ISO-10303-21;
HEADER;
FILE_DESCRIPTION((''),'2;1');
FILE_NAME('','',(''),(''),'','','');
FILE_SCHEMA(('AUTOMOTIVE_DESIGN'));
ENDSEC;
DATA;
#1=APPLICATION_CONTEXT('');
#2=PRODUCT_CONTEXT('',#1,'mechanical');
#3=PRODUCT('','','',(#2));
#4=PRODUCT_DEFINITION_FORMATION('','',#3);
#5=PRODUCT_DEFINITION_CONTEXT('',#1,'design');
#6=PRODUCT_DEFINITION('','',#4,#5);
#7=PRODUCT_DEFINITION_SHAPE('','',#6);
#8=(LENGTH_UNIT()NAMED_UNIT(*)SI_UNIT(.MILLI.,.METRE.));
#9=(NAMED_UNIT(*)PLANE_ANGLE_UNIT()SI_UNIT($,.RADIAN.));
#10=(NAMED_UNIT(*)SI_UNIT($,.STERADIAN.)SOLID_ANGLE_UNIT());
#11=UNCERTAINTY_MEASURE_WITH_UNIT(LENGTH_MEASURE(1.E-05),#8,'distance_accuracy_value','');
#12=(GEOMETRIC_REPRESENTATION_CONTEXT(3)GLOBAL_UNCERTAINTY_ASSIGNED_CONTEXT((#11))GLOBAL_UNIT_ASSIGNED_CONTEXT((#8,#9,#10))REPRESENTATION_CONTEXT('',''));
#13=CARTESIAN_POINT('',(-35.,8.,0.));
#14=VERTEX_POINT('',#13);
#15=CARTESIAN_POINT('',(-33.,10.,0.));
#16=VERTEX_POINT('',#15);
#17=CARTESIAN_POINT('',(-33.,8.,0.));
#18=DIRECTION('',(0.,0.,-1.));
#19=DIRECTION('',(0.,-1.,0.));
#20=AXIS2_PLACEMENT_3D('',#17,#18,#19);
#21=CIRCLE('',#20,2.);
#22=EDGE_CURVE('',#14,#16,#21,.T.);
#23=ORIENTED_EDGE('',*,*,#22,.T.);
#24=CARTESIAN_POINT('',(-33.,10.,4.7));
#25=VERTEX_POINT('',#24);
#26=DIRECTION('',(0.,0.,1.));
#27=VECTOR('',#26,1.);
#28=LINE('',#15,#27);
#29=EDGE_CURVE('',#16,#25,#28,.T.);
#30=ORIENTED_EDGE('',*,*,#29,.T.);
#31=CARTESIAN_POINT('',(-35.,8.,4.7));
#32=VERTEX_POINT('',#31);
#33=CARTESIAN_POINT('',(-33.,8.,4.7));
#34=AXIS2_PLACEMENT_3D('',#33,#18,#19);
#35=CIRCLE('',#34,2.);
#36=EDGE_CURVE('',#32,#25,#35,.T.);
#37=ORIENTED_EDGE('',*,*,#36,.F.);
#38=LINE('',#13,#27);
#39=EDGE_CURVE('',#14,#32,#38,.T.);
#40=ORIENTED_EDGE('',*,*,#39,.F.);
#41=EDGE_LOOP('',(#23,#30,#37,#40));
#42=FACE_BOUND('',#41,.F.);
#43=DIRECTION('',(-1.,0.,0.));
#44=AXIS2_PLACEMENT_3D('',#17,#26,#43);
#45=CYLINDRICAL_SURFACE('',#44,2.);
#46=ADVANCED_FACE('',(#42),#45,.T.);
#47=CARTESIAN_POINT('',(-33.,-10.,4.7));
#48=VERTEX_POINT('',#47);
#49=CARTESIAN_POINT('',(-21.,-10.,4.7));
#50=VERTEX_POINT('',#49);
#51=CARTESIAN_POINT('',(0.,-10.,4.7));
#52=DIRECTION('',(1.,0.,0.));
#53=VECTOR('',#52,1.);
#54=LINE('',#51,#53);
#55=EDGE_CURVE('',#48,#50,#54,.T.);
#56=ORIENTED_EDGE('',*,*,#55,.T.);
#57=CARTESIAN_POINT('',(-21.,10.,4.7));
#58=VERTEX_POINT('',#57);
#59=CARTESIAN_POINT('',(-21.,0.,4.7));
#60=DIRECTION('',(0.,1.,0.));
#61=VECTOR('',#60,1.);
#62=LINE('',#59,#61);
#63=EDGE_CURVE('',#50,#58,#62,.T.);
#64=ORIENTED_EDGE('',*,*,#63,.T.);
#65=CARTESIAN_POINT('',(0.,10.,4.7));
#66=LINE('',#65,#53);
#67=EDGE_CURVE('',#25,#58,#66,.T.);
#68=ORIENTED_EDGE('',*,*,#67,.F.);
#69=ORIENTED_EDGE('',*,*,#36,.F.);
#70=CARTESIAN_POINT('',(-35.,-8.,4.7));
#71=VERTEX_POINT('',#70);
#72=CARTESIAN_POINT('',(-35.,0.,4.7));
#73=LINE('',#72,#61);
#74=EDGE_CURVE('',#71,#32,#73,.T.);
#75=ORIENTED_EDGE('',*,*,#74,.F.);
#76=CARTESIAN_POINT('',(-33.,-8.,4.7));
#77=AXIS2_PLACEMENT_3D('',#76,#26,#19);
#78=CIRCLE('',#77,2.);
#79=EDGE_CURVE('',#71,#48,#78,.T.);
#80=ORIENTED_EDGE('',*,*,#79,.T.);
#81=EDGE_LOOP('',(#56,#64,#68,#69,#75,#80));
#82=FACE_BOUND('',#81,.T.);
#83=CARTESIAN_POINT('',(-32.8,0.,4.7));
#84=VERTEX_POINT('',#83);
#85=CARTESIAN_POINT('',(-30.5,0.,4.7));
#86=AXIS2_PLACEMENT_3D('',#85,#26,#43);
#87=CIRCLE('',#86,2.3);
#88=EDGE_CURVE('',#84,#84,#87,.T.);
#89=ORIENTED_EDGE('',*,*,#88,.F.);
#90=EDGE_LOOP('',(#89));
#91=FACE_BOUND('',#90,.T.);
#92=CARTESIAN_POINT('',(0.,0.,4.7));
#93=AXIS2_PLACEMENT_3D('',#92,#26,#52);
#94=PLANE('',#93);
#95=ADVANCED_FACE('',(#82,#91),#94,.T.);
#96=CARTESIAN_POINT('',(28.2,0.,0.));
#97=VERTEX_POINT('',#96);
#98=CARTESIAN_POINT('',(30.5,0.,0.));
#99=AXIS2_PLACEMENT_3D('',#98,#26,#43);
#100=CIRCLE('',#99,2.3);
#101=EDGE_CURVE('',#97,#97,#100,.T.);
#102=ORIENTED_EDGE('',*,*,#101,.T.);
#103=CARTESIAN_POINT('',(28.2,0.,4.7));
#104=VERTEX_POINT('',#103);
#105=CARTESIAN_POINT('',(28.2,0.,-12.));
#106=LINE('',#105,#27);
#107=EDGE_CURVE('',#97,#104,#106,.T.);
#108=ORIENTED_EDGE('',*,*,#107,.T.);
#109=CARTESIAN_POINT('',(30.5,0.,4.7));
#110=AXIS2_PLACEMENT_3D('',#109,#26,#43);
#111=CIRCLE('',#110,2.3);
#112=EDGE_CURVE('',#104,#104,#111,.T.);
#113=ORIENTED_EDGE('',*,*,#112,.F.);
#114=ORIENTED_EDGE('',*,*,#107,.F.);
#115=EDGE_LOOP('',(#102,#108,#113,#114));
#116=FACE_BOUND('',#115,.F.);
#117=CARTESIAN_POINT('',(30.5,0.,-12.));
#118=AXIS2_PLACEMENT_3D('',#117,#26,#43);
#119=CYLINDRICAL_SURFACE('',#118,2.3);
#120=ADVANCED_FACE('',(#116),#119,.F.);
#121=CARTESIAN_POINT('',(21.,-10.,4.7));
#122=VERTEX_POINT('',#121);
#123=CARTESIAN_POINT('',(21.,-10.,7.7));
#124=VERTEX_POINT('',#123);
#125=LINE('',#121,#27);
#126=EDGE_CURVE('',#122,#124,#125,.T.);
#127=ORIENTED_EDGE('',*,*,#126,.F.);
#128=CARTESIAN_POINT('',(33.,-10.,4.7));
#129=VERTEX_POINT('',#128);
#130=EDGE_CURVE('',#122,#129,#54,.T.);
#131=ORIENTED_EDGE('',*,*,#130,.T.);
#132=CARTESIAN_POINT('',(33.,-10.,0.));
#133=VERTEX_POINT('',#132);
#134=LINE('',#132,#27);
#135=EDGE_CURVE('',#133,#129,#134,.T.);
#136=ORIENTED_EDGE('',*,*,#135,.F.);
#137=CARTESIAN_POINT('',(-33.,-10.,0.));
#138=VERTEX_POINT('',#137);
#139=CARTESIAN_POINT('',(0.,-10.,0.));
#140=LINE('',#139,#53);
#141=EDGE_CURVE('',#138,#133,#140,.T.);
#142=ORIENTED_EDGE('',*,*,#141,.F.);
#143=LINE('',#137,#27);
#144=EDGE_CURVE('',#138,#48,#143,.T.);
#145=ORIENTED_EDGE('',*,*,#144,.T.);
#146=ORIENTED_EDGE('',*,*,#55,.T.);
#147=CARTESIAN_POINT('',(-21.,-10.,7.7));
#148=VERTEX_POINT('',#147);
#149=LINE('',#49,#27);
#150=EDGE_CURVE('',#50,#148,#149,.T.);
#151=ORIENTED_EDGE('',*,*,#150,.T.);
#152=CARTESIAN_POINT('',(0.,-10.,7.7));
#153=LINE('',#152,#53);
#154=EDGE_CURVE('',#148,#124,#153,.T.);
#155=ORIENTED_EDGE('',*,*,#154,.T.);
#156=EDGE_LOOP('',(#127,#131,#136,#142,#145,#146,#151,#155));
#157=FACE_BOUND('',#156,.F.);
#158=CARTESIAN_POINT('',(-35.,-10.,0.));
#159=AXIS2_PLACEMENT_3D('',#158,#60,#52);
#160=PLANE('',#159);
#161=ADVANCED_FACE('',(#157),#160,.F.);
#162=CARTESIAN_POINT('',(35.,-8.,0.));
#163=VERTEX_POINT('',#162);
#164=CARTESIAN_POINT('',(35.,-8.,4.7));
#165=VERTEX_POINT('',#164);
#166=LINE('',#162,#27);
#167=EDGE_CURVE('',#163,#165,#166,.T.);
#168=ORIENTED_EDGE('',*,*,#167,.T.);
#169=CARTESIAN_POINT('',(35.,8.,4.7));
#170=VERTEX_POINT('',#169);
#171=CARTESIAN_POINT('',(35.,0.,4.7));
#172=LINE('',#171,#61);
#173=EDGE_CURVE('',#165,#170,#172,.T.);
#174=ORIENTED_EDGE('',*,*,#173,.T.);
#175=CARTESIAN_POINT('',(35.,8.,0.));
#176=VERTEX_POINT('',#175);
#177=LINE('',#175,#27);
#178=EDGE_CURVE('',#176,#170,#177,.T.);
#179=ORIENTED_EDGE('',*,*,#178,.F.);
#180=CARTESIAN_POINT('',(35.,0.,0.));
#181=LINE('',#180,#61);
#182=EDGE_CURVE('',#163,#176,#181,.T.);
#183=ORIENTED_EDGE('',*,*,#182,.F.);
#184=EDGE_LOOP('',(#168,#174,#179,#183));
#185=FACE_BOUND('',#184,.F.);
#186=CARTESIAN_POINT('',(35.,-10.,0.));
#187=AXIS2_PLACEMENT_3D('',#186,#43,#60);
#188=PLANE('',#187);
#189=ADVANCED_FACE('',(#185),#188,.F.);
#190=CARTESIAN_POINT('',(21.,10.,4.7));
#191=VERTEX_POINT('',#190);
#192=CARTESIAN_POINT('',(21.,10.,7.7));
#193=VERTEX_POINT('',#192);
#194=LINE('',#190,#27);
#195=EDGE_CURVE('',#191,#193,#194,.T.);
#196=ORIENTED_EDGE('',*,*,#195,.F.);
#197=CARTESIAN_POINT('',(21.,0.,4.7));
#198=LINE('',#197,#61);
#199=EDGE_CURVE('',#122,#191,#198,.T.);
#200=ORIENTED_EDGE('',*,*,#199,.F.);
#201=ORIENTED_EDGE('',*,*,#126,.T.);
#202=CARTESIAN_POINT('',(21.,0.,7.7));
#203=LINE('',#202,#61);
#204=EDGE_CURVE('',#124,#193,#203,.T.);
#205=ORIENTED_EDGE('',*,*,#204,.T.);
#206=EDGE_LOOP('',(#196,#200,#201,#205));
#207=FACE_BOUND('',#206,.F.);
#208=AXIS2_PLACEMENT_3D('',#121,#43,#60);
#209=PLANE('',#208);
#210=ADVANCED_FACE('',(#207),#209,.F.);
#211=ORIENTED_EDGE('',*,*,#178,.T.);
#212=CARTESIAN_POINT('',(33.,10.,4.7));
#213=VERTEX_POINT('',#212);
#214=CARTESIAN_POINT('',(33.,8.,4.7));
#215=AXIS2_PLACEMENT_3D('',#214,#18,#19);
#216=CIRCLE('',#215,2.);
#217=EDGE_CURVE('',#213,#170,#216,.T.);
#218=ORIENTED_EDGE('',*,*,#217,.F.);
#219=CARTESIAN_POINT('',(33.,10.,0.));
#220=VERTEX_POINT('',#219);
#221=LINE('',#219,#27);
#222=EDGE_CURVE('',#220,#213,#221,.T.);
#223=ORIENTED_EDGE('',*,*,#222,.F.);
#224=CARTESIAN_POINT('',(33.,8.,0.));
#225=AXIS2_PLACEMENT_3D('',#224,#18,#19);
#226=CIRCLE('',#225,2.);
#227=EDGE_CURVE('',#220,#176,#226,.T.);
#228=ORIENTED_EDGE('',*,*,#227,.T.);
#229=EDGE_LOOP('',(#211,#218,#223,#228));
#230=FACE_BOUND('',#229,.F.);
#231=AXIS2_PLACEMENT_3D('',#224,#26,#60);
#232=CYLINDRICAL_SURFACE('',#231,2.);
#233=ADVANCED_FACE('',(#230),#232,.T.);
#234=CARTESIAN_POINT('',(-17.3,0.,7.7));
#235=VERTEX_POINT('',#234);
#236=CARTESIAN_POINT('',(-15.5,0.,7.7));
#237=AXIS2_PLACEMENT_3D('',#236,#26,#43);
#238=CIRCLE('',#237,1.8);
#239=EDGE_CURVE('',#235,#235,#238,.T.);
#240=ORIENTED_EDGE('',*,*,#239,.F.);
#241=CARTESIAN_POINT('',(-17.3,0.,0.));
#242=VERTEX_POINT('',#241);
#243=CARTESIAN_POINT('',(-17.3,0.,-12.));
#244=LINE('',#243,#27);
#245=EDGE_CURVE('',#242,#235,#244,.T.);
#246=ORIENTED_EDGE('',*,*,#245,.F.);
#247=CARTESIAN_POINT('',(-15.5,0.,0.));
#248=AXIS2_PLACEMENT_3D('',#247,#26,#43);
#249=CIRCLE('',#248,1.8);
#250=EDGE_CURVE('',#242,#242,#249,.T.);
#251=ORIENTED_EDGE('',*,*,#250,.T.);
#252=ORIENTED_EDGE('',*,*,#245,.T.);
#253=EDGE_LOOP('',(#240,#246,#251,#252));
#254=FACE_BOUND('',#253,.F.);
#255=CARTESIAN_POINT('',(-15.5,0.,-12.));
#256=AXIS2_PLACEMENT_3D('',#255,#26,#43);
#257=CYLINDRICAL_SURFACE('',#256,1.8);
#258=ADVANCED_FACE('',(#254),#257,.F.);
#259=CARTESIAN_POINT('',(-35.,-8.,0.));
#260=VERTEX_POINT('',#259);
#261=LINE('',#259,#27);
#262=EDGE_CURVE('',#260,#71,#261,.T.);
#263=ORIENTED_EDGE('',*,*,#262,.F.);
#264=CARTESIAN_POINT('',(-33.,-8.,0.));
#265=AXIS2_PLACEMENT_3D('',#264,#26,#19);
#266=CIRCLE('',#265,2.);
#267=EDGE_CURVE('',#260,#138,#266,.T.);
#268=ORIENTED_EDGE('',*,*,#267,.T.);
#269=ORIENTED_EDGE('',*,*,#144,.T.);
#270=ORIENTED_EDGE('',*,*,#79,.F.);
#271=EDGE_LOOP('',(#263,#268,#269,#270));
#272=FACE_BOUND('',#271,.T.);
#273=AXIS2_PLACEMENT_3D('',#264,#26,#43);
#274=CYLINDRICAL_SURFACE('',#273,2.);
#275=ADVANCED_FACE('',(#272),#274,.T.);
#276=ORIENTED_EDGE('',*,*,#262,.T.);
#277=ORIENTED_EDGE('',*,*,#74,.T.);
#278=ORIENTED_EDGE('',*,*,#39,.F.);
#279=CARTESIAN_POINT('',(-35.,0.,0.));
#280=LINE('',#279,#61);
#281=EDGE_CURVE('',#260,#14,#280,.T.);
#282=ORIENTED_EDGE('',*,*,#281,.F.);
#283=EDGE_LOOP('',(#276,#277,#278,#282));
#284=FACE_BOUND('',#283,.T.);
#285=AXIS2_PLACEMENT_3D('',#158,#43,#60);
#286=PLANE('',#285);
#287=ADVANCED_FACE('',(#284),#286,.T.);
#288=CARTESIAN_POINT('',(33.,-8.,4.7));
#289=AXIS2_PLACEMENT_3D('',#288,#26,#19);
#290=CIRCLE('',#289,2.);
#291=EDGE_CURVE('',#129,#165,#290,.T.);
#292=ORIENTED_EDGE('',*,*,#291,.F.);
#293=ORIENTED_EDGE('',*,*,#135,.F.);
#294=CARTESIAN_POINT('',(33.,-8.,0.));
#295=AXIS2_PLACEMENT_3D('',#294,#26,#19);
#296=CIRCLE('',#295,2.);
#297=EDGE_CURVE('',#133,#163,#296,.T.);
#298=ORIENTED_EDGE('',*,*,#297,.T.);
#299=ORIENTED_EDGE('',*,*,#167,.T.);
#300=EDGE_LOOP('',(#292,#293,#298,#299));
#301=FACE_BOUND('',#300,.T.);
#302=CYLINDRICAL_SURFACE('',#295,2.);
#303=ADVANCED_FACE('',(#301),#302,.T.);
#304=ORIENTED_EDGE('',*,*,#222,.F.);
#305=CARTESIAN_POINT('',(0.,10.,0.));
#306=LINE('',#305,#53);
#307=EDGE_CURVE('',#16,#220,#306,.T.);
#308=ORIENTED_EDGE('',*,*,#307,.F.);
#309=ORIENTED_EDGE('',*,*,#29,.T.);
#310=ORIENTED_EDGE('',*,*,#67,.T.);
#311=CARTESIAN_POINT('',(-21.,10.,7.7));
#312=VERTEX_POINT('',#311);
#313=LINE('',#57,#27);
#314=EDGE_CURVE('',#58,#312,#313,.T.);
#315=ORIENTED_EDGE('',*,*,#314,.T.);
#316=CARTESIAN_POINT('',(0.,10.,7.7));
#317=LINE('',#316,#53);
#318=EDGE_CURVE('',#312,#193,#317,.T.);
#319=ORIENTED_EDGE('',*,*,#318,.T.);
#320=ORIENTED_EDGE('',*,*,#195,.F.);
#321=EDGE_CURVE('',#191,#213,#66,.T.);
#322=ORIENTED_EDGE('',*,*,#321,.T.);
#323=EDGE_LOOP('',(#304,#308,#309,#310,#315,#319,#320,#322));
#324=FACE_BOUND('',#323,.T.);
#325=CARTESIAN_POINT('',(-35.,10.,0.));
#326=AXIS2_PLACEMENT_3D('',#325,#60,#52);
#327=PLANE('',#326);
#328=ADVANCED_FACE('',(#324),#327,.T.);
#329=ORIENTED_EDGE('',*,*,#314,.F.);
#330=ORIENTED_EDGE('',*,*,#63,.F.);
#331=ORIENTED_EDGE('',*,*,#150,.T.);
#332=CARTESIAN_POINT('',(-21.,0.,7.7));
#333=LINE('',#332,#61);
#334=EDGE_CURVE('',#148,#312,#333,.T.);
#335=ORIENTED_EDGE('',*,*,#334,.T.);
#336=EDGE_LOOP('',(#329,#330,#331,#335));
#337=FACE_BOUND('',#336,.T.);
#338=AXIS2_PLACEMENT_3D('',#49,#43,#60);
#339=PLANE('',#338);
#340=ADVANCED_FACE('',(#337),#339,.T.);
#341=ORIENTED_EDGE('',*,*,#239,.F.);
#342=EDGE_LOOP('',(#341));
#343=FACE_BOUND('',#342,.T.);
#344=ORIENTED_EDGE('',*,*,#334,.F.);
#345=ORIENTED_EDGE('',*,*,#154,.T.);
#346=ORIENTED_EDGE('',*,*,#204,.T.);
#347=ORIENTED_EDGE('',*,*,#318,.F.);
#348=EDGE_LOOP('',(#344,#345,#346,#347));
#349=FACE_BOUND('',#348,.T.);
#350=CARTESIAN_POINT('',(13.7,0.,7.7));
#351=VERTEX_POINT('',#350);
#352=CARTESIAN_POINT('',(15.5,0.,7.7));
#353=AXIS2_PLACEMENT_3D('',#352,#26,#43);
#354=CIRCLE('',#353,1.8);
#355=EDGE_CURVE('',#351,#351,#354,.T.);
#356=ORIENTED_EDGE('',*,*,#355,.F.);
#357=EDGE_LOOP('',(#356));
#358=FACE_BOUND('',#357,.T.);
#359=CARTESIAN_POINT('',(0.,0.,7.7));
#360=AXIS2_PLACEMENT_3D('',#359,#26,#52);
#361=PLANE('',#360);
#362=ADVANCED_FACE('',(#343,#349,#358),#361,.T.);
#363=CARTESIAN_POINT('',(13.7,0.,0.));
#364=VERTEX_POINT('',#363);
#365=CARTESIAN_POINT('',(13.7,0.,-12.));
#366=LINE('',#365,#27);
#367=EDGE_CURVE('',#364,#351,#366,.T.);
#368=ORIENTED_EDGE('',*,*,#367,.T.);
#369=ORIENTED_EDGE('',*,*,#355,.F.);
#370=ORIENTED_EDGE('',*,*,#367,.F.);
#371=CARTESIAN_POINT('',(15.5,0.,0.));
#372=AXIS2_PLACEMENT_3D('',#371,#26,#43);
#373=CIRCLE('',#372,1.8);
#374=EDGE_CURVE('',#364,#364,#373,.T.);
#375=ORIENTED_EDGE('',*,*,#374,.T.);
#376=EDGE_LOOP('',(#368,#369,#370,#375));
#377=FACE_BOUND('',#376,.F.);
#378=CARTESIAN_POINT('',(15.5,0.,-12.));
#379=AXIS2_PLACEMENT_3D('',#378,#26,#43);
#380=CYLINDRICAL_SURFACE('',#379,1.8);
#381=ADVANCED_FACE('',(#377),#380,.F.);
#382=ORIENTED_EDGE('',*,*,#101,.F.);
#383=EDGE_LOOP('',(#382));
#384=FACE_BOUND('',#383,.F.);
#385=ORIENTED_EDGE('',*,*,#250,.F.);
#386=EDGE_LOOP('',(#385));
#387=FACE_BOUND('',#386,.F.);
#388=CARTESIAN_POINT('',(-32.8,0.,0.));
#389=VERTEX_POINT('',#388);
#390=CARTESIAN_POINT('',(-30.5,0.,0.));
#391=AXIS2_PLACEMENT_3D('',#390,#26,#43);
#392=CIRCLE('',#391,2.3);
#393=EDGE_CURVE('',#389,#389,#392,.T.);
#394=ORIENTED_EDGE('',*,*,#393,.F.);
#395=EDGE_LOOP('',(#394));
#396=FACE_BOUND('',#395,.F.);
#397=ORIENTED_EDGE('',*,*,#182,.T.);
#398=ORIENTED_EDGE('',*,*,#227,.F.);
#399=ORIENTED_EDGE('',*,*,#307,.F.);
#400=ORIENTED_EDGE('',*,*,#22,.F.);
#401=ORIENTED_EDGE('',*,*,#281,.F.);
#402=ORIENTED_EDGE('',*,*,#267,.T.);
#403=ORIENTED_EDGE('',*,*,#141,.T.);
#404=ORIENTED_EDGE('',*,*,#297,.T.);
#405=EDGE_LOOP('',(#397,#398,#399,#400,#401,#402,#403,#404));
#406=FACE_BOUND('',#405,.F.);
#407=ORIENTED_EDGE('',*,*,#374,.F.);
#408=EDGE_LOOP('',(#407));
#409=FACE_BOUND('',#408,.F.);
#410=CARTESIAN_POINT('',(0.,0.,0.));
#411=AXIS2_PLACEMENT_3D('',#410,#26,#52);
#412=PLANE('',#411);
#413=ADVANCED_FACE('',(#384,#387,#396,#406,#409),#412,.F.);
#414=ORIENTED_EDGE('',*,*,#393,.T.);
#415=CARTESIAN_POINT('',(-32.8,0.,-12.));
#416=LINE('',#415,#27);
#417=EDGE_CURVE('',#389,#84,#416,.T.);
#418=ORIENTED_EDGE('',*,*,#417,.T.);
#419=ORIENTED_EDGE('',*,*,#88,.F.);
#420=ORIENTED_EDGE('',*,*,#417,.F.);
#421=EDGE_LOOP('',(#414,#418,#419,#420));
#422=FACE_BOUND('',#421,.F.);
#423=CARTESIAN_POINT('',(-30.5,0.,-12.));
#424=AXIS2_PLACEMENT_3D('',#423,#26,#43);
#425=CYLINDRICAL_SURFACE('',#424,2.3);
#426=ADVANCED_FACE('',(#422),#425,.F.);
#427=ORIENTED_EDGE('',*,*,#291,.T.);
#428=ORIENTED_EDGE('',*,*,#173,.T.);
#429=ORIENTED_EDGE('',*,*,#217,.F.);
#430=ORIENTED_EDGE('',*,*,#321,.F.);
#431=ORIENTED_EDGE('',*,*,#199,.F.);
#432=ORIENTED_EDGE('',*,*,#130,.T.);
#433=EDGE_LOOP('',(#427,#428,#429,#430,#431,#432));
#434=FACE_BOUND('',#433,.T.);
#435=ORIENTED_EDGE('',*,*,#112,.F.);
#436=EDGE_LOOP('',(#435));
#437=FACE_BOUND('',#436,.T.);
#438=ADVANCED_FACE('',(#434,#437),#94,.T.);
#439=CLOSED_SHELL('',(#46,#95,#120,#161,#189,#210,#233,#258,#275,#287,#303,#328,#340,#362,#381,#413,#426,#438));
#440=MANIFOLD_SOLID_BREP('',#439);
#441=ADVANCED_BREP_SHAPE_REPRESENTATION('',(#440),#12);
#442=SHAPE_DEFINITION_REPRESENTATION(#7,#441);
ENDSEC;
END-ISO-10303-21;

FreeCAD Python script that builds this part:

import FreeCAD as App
import Part
import Sketcher
Q = App.Units.Quantity


def edges_at(feature, points):
    """Names of the edges that pass closest to the given points."""
    edges = feature.Shape.Edges
    near = lambda p: min(range(len(edges)), key=lambda i: edges[i].distToShape(Part.Vertex(*p))[0])
    return sorted({f"Edge{near(p) + 1}" for p in points})

doc = App.newDocument("Part")
params = doc.addObject("Spreadsheet::Sheet", "Params")
for row, (alias, value) in enumerate([
    ("sketch1_width", "70 mm"),
    ("sketch1_height", "20 mm"),
    ("pad1_length", "4.7 mm"),
    ("sketch2_width", "42 mm"),
    ("sketch2_height", "20 mm"),
    ("pad2_length", "3 mm"),
    ("sketch3_diameter", "3.6 mm"),
    ("hole_diameter", "3.6 mm"),
    ("hole_depth", "12 mm"),
    ("sketch4_diameter", "4.6 mm"),
    ("hole2_diameter", "4.6 mm"),
    ("hole2_depth", "12 mm"),
    ("fillet_radius", "2 mm"),
], start=1):
    params.set(f"A{row}", alias)
    params.set(f"B{row}", "=" + value)
    params.setAlias(f"B{row}", alias)

body = doc.addObject("PartDesign::Body", "Body")

# Sketch on XY plane
sketch1 = doc.addObject("Sketcher::SketchObject", "Sketch")
body.addObject(sketch1)
sketch1.AttachmentSupport = (doc.XY_Plane, [""])
sketch1.MapMode = "FlatFace"
sketch1.addGeometry([
    Part.LineSegment(App.Vector(-35, 10, 0), App.Vector(-35, -10, 0)),
    Part.LineSegment(App.Vector(-35, -10, 0), App.Vector(35, -10, 0)),
    Part.LineSegment(App.Vector(35, -10, 0), App.Vector(35, 10, 0)),
    Part.LineSegment(App.Vector(35, 10, 0), App.Vector(-35, 10, 0)),
], False)
sketch1.addConstraint([
    Sketcher.Constraint("Coincident", 0, 2, 1, 1),
    Sketcher.Constraint("Coincident", 1, 2, 2, 1),
    Sketcher.Constraint("Coincident", 2, 2, 3, 1),
    Sketcher.Constraint("Coincident", 3, 2, 0, 1),
    Sketcher.Constraint("Vertical", 0),
    Sketcher.Constraint("Horizontal", 1),
    Sketcher.Constraint("Vertical", 2),
    Sketcher.Constraint("Horizontal", 3),
    Sketcher.Constraint("Symmetric", 0, 2, 2, 2, -1, 1),
    Sketcher.Constraint("DistanceX", 1, 1, 1, 2, Q("70 mm")),
    Sketcher.Constraint("DistanceY", 0, 2, 0, 1, Q("20 mm")),
])
sketch1.setExpression("Constraints[9]", "Params.sketch1_width")
sketch1.setExpression("Constraints[10]", "Params.sketch1_height")
pad1 = doc.addObject("PartDesign::Pad", "Pad")
body.addObject(pad1)
pad1.Profile = sketch1
pad1.setExpression("Length", "Params.pad1_length")

# Sketch on XY plane
sketch2 = doc.addObject("Sketcher::SketchObject", "Sketch001")
body.addObject(sketch2)
sketch2.AttachmentSupport = (doc.XY_Plane, [""])
sketch2.MapMode = "FlatFace"
sketch2.AttachmentOffset = App.Placement(App.Vector(0, 0, 4.7), App.Rotation())
sketch2.addGeometry([
    Part.LineSegment(App.Vector(-21, 10, 0), App.Vector(-21, -10, 0)),
    Part.LineSegment(App.Vector(-21, -10, 0), App.Vector(21, -10, 0)),
    Part.LineSegment(App.Vector(21, -10, 0), App.Vector(21, 10, 0)),
    Part.LineSegment(App.Vector(21, 10, 0), App.Vector(-21, 10, 0)),
], False)
sketch2.addConstraint([
    Sketcher.Constraint("Coincident", 0, 2, 1, 1),
    Sketcher.Constraint("Coincident", 1, 2, 2, 1),
    Sketcher.Constraint("Coincident", 2, 2, 3, 1),
    Sketcher.Constraint("Coincident", 3, 2, 0, 1),
    Sketcher.Constraint("Vertical", 0),
    Sketcher.Constraint("Horizontal", 1),
    Sketcher.Constraint("Vertical", 2),
    Sketcher.Constraint("Horizontal", 3),
    Sketcher.Constraint("Symmetric", 0, 2, 2, 2, -1, 1),
    Sketcher.Constraint("DistanceX", 1, 1, 1, 2, Q("42 mm")),
    Sketcher.Constraint("DistanceY", 0, 2, 0, 1, Q("20 mm")),
])
sketch2.setExpression("Constraints[9]", "Params.sketch2_width")
sketch2.setExpression("Constraints[10]", "Params.sketch2_height")
pad2 = doc.addObject("PartDesign::Pad", "Pad001")
body.addObject(pad2)
pad2.Profile = sketch2
pad2.setExpression("Length", "Params.pad2_length")

# Sketch on XY plane
sketch3 = doc.addObject("Sketcher::SketchObject", "Sketch002")
body.addObject(sketch3)
sketch3.AttachmentSupport = (doc.XY_Plane, [""])
sketch3.MapMode = "FlatFace"
sketch3.addGeometry([
    Part.Circle(App.Vector(-15.5, 0, 0), App.Vector(0, 0, 1), 1.8),
    Part.Circle(App.Vector(15.5, 0, 0), App.Vector(0, 0, 1), 1.8),
], False)
sketch3.addConstraint([
    Sketcher.Constraint("Equal", 0, 1),
    Sketcher.Constraint("Symmetric", 0, 3, 1, 3, -1, 1),
    Sketcher.Constraint("PointOnObject", 0, 3, -1),
    Sketcher.Constraint("Diameter", 0, Q("3.6 mm")),
    Sketcher.Constraint("DistanceX", 0, 3, 1, 3, Q("31 mm")),
])
sketch3.setExpression("Constraints[3]", "Params.sketch3_diameter")
doc.recompute()
hole = doc.addObject("PartDesign::Hole", "Hole")
body.addObject(hole)
hole.Profile = sketch3
hole.ThreadType = "None"
hole.setExpression("Diameter", "Params.hole_diameter")
hole.DepthType = "Dimension"
hole.setExpression("Depth", "Params.hole_depth")
hole.DrillPoint = "Flat"
hole.Reversed = True

# Sketch on XY plane
sketch4 = doc.addObject("Sketcher::SketchObject", "Sketch003")
body.addObject(sketch4)
sketch4.AttachmentSupport = (doc.XY_Plane, [""])
sketch4.MapMode = "FlatFace"
sketch4.addGeometry([
    Part.Circle(App.Vector(-30.5, 0, 0), App.Vector(0, 0, 1), 2.3),
    Part.Circle(App.Vector(30.5, 0, 0), App.Vector(0, 0, 1), 2.3),
], False)
sketch4.addConstraint([
    Sketcher.Constraint("Equal", 0, 1),
    Sketcher.Constraint("Symmetric", 0, 3, 1, 3, -1, 1),
    Sketcher.Constraint("PointOnObject", 0, 3, -1),
    Sketcher.Constraint("Diameter", 0, Q("4.6 mm")),
    Sketcher.Constraint("DistanceX", 0, 3, 1, 3, Q("61 mm")),
])
sketch4.setExpression("Constraints[3]", "Params.sketch4_diameter")
doc.recompute()
hole2 = doc.addObject("PartDesign::Hole", "Hole001")
body.addObject(hole2)
hole2.Profile = sketch4
hole2.ThreadType = "None"
hole2.setExpression("Diameter", "Params.hole2_diameter")
hole2.DepthType = "Dimension"
hole2.setExpression("Depth", "Params.hole2_depth")
hole2.DrillPoint = "Flat"
hole2.Reversed = True
doc.recompute()

fillet = doc.addObject("PartDesign::Fillet", "Fillet")
body.addObject(fillet)
fillet.Base = (hole2, edges_at(hole2, [
    (35, -10, 2.35),
    (35, 10, 2.35),
    (-35, 10, 2.35),
    (-35, -10, 2.35),
]))
fillet.setExpression("Radius", "Params.fillet_radius")

doc.recompute()
